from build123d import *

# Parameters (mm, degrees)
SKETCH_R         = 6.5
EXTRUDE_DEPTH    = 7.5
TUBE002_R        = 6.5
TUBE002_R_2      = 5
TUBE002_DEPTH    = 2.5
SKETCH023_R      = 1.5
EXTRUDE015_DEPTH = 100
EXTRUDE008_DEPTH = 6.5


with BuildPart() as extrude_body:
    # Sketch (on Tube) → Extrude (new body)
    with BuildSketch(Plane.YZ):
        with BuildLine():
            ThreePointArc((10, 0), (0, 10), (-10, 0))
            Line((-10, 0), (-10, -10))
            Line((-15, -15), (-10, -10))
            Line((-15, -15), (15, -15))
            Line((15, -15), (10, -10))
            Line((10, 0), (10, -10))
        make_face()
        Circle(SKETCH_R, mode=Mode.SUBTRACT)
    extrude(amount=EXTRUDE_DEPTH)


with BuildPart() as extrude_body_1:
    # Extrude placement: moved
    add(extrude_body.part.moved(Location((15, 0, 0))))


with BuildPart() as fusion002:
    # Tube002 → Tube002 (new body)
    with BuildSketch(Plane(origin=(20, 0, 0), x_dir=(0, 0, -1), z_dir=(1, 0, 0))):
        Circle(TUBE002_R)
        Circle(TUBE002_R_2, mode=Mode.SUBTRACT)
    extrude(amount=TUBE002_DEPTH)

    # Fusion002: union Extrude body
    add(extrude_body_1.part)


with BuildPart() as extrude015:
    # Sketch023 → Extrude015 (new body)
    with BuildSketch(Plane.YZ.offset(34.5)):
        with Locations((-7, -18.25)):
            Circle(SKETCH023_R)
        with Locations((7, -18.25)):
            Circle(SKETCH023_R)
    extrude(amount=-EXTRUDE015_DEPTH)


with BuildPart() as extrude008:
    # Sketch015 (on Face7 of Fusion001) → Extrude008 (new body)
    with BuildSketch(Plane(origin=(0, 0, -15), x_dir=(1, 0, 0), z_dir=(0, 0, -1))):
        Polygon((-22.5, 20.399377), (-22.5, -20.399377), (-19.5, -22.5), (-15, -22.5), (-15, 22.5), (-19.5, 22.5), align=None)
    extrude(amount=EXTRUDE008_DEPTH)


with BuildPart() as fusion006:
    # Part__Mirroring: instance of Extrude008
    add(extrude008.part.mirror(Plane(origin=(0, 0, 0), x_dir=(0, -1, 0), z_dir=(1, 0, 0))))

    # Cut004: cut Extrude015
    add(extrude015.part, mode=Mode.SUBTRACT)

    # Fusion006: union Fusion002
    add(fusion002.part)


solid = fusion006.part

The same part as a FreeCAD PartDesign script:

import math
import FreeCAD as App
import Part
import Sketcher

V = App.Vector
Q = App.Units.Quantity

doc = App.newDocument("Part")
body = doc.addObject("PartDesign::Body", "Body")

sketch1 = body.newObject("Sketcher::SketchObject", "Sketch")
sketch1.AttachmentSupport = (doc.getObject("YZ_Plane"), [""])
sketch1.MapMode = "FlatFace"
sketch1.addGeometry([
    Part.ArcOfCircle(Part.Circle(V(0, 0, 0), V(0, 0, 1), 10), math.radians(0), math.radians(180)),
    Part.LineSegment(V(-10, 0, 0), V(-10, -10, 0)),
    Part.LineSegment(V(-10, -10, 0), V(-15, -15, 0)),
    Part.LineSegment(V(-15, -15, 0), V(15, -15, 0)),
    Part.LineSegment(V(15, -15, 0), V(10, -10, 0)),
    Part.LineSegment(V(10, -10, 0), V(10, 0, 0)),
    Part.Circle(V(0, 0, 0), V(0, 0, 1), 6),
], False)
sketch1.addConstraint([
    Sketcher.Constraint("Tangent", 0, 2, 1, 1),
    Sketcher.Constraint("Coincident", 1, 2, 2, 1),
    Sketcher.Constraint("Coincident", 2, 2, 3, 1),
    Sketcher.Constraint("Coincident", 3, 2, 4, 1),
    Sketcher.Constraint("Coincident", 4, 2, 5, 1),
    Sketcher.Constraint("Tangent", 5, 2, 0, 1),
    Sketcher.Constraint("Vertical", 1),
    Sketcher.Constraint("Horizontal", 3),
    Sketcher.Constraint("Vertical", 5),
    Sketcher.Constraint("Coincident", 0, 3, -1, 1),
    Sketcher.Constraint("Coincident", 6, 3, -1, 1),
    Sketcher.Constraint("Perpendicular", 2, 4),
    Sketcher.Constraint("Horizontal", 1, 2, 4, 2),
    Sketcher.Constraint("Equal", 2, 4),
    Sketcher.Constraint("Diameter", 6, Q("13 mm")),
    Sketcher.Constraint("Radius", 0, Q("10 mm")),
    Sketcher.Constraint("DistanceX", 3, 1, 3, 2, Q("30 mm")),
    Sketcher.Constraint("DistanceY", 1, 2, 1, 1, Q("10 mm")),
])
pad1 = body.newObject("PartDesign::Pad", "Pad")
pad1.Profile = sketch1
pad1.Length = 7.5
body2 = doc.addObject("PartDesign::Body", "Body001")
doc.recompute()

body.Placement = App.Placement(V(15, 0, 0), App.Rotation(V(0, 0, 1), 0))
boolean = body2.newObject("PartDesign::Boolean", "Boolean")
boolean.Type = "Fuse"
boolean.addObjects([body])
body3 = doc.addObject("PartDesign::Body", "Body002")

sketch2 = body3.newObject("Sketcher::SketchObject", "Sketch001")
sketch2.AttachmentSupport = (doc.getObject("YZ_Plane002"), [""])
sketch2.MapMode = "FlatFace"
sketch2.AttachmentOffset = App.Placement(V(0, 0, 20), App.Rotation())
sketch2.addGeometry([
    Part.Circle(V(0, 0, 0), V(0, 0, 1), 6),
    Part.Circle(V(0, 0, 0), V(0, 0, 1), 5),
], False)
sketch2.addConstraint([
    Sketcher.Constraint("Coincident", 0, 3, -1, 1),
    Sketcher.Constraint("Coincident", 1, 3, -1, 1),
    Sketcher.Constraint("Diameter", 0, Q("13 mm")),
    Sketcher.Constraint("Diameter", 1, Q("10 mm")),
])
pad2 = body3.newObject("PartDesign::Pad", "Pad001")
pad2.Profile = sketch2
pad2.Length = 2.5
doc.recompute()

boolean2 = body3.newObject("PartDesign::Boolean", "Boolean001")
boolean2.Type = "Fuse"
boolean2.addObjects([body2])
body4 = doc.addObject("PartDesign::Body", "Body003")
body4.AllowCompound = True

sketch3 = body4.newObject("Sketcher::SketchObject", "Sketch002")
sketch3.AttachmentSupport = (doc.getObject("YZ_Plane003"), [""])
sketch3.MapMode = "FlatFace"
sketch3.AttachmentOffset = App.Placement(V(0, 0, 34.5), App.Rotation())
sketch3.addGeometry([
    Part.Circle(V(-7, -18.2, 0), V(0, 0, 1), 1.5),
    Part.Circle(V(7, -18.2, 0), V(0, 0, 1), 1.5),
], False)
sketch3.addConstraint([
    Sketcher.Constraint("Equal", 0, 1),
    Sketcher.Constraint("Symmetric", 0, 3, 1, 3, -2),
    Sketcher.Constraint("Diameter", 0, Q("3 mm")),
    Sketcher.Constraint("DistanceX", 0, 3, -1, 1, Q("7 mm")),
    Sketcher.Constraint("DistanceY", 0, 3, -1, 1, Q("18.25 mm")),
])
pad3 = body4.newObject("PartDesign::Pad", "Pad002")
pad3.Profile = sketch3
pad3.Length = 100
pad3.Reversed = True
body5 = doc.addObject("PartDesign::Body", "Body004")

sketch4 = body5.newObject("Sketcher::SketchObject", "Sketch003")
sketch4.AttachmentSupport = (doc.getObject("XY_Plane004"), [""])
sketch4.MapMode = "FlatFace"
sketch4.AttachmentOffset = App.Placement(V(0, 0, -15), App.Rotation())
sketch4.addGeometry([
    Part.LineSegment(V(-22.5, -20.4, 0), V(-22.5, 20.4, 0)),
    Part.LineSegment(V(-22.5, 20.4, 0), V(-19.5, 22.5, 0)),
    Part.LineSegment(V(-19.5, 22.5, 0), V(-15, 22.5, 0)),
    Part.LineSegment(V(-15, 22.5, 0), V(-15, -22.5, 0)),
    Part.LineSegment(V(-15, -22.5, 0), V(-19.5, -22.5, 0)),
    Part.LineSegment(V(-19.5, -22.5, 0), V(-22.5, -20.4, 0)),
], False)
sketch4.addConstraint([
    Sketcher.Constraint("Coincident", 0, 2, 1, 1),
    Sketcher.Constraint("Coincident", 1, 2, 2, 1),
    Sketcher.Constraint("Coincident", 2, 2, 3, 1),
    Sketcher.Constraint("Coincident", 3, 2, 4, 1),
    Sketcher.Constraint("Coincident", 4, 2, 5, 1),
    Sketcher.Constraint("Coincident", 5, 2, 0, 1),
    Sketcher.Constraint("Vertical", 0),
    Sketcher.Constraint("Horizontal", 2),
    Sketcher.Constraint("Vertical", 3),
    Sketcher.Constraint("Horizontal", 4),
    Sketcher.Constraint("Symmetric", 1, 2, 4, 2, -1),
    Sketcher.Constraint("Equal", 1, 5),
    Sketcher.Constraint("DistanceY", 3, 2, 3, 1, Q("45 mm")),
    Sketcher.Constraint("Angle", 1, Q("35.000005 deg")),
    Sketcher.Constraint("DistanceX", 2, 1, 2, 2, Q("4.5 mm")),
    Sketcher.Constraint("DistanceX", 2, 2, -1, 1, Q("15 mm")),
    Sketcher.Constraint("DistanceX", 0, 2, 1, 2, Q("3 mm")),
])
pad4 = body5.newObject("PartDesign::Pad", "Pad003")
pad4.Profile = sketch4
pad4.Length = 6.5
pad4.Reversed = True
body6 = doc.addObject("PartDesign::Body", "Body005")
doc.recompute()

mirroring = doc.addObject("Part::Mirroring", "Mirroring")
mirroring.Source = body5
mirroring.Base = V(0, 0, 0)
mirroring.Normal = V(1, 0, 0)
body6.BaseFeature = mirroring
doc.recompute()

boolean3 = body6.newObject("PartDesign::Boolean", "Boolean002")
boolean3.Type = "Cut"
boolean3.addObjects([body4])
doc.recompute()

boolean4 = body6.newObject("PartDesign::Boolean", "Boolean003")
boolean4.Type = "Fuse"
boolean4.addObjects([body3])
body5.Visibility = False
mirroring.Visibility = False

doc.recompute()
